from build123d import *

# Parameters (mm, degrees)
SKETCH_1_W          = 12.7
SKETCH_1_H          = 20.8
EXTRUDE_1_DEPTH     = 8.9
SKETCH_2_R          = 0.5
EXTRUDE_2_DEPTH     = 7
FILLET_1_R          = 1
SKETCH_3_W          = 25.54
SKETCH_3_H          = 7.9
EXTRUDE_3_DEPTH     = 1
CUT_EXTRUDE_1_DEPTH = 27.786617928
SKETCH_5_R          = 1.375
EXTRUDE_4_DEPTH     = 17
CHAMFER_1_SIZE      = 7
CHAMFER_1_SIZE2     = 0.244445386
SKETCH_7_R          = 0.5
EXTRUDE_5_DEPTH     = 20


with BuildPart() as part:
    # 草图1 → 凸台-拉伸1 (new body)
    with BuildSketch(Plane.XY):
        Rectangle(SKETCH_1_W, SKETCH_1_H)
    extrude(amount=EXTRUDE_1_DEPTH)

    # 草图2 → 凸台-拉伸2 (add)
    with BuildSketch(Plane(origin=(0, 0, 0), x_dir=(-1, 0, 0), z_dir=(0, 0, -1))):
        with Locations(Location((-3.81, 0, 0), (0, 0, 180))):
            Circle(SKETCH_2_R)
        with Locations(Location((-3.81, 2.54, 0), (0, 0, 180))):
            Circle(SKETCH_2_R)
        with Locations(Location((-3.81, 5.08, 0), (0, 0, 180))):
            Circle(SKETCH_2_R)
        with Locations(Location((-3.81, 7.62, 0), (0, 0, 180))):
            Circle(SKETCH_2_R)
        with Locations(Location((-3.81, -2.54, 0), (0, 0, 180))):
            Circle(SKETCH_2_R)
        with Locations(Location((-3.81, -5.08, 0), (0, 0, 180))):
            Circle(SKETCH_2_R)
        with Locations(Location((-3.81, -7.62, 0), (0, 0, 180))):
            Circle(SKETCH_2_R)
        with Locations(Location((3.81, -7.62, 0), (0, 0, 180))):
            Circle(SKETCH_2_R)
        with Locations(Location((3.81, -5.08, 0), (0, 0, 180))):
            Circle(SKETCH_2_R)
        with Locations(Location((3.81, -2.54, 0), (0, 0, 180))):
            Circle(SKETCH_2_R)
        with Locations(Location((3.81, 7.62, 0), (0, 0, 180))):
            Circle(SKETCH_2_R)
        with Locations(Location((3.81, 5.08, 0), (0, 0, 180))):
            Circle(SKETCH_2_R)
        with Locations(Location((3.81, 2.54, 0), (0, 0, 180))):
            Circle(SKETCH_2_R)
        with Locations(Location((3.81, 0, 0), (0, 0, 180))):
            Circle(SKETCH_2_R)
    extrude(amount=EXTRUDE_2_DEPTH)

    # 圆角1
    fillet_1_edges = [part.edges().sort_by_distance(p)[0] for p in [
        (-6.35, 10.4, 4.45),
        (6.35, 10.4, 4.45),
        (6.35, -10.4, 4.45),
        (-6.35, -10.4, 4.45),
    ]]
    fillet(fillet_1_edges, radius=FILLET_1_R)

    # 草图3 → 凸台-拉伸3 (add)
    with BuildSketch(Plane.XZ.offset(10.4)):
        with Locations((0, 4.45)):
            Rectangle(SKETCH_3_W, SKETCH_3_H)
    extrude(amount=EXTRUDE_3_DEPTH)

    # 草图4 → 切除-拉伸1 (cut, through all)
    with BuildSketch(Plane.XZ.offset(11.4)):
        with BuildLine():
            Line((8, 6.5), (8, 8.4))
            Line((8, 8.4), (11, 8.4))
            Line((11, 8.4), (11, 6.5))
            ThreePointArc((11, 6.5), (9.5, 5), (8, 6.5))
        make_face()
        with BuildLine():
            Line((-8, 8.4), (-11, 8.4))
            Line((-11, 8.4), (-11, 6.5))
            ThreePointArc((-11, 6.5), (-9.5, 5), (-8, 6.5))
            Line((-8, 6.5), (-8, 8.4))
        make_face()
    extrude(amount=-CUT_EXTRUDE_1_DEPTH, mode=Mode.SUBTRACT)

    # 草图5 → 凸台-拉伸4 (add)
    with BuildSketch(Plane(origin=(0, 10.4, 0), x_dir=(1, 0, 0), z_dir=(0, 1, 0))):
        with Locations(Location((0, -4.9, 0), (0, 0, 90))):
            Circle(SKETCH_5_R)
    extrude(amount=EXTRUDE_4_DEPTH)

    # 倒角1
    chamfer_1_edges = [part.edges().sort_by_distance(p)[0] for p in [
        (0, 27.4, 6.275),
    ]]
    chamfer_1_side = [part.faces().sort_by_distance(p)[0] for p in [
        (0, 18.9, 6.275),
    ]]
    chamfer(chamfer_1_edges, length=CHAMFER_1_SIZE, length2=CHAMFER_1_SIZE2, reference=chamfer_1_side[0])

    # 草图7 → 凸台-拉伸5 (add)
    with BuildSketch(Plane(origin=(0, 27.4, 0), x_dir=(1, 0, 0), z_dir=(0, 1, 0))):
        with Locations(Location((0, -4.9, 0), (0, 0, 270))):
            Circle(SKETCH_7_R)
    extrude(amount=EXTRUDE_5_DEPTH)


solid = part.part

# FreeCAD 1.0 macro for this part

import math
import FreeCAD as App
import Part
import Sketcher
Q = App.Units.Quantity


def edges_at(feature, points):
    """Names of the edges that pass closest to the given points."""
    edges = feature.Shape.Edges
    near = lambda p: min(range(len(edges)), key=lambda i: edges[i].distToShape(Part.Vertex(*p))[0])
    return sorted({f"Edge{near(p) + 1}" for p in points})


def add_polygon(sketch, points):
    """Adds a closed chain of lines whose ends are joined by coincident constraints."""
    first, n = sketch.GeometryCount, len(points)
    for a, b in zip(points, points[1:] + points[:1]):
        sketch.addGeometry(Part.LineSegment(App.Vector(*a, 0), App.Vector(*b, 0)), False)
    for i in range(n):
        sketch.addConstraint(Sketcher.Constraint("Coincident", first + i, 2, first + (i + 1) % n, 1))

doc = App.newDocument("Part")
params = doc.addObject("Spreadsheet::Sheet", "Params")
for row, (alias, value) in enumerate([
    ("sketch1_width", "12.7 mm"),
    ("sketch1_height", "20.8 mm"),
    ("pad1_length", "8.9 mm"),
    ("sketch2_diameter", "1 mm"),
    ("pad2_length", "7 mm"),
    ("fillet_radius", "1 mm"),
    ("sketch3_height", "7.9 mm"),
    ("sketch3_width", "25.54 mm"),
    ("pad3_length", "1 mm"),
    ("sketch4_radius", "1.5 mm"),
    ("sketch4_height", "1.9 mm"),
    ("sketch5_diameter", "2.75 mm"),
    ("pad4_length", "17 mm"),
    ("chamfer_size", "7 mm"),
    ("chamfer_size2", "0.244445 mm"),
    ("sketch6_diameter", "1 mm"),
    ("pad5_length", "20 mm"),
], start=1):
    params.set(f"A{row}", alias)
    params.set(f"B{row}", "=" + value)
    params.setAlias(f"B{row}", alias)

body = doc.addObject("PartDesign::Body", "Body")

# Sketch on XY plane
sketch1 = body.newObject("Sketcher::SketchObject", "Sketch")
sketch1.AttachmentSupport = (doc.getObject("XY_Plane"), [""])
sketch1.MapMode = "FlatFace"
add_polygon(sketch1, [(-6, 10), (-6, -10), (6, -10), (6, 10)])  # lines 0-3
sketch1.addConstraint([
    Sketcher.Constraint("Vertical", 0),
    Sketcher.Constraint("Horizontal", 1),
    Sketcher.Constraint("Vertical", 2),
    Sketcher.Constraint("Horizontal", 3),
    Sketcher.Constraint("Symmetric", 0, 2, 2, 2, -1, 1),
    Sketcher.Constraint("DistanceX", 1, 1, 1, 2, Q("12.7 mm")),
    Sketcher.Constraint("DistanceY", 0, 2, 0, 1, Q("20.8 mm")),
])
sketch1.setExpression("Constraints[9]", "Params.sketch1_width")
sketch1.setExpression("Constraints[10]", "Params.sketch1_height")
pad1 = body.newObject("PartDesign::Pad", "Pad")
pad1.Profile = sketch1
pad1.setExpression("Length", "Params.pad1_length")

# Sketch on XY plane
sketch2 = body.newObject("Sketcher::SketchObject", "Sketch001")
sketch2.AttachmentSupport = (doc.getObject("XY_Plane"), [""])
sketch2.MapMode = "FlatFace"
sketch2.addGeometry([
    Part.Circle(App.Vector(3.8, 0, 0), App.Vector(0, 0, 1), 0.5),  # 0
    Part.Circle(App.Vector(3.8, 2.5, 0), App.Vector(0, 0, 1), 0.5),  # 1
    Part.Circle(App.Vector(3.8, 5.1, 0), App.Vector(0, 0, 1), 0.5),  # 2
    Part.Circle(App.Vector(3.8, 7.6, 0), App.Vector(0, 0, 1), 0.5),  # 3
    Part.Circle(App.Vector(3.8, -2.5, 0), App.Vector(0, 0, 1), 0.5),  # 4
    Part.Circle(App.Vector(3.8, -5.1, 0), App.Vector(0, 0, 1), 0.5),  # 5
    Part.Circle(App.Vector(3.8, -7.6, 0), App.Vector(0, 0, 1), 0.5),  # 6
    Part.Circle(App.Vector(-3.8, -7.6, 0), App.Vector(0, 0, 1), 0.5),  # 7
    Part.Circle(App.Vector(-3.8, -5.1, 0), App.Vector(0, 0, 1), 0.5),  # 8
    Part.Circle(App.Vector(-3.8, -2.5, 0), App.Vector(0, 0, 1), 0.5),  # 9
    Part.Circle(App.Vector(-3.8, 7.6, 0), App.Vector(0, 0, 1), 0.5),  # 10
    Part.Circle(App.Vector(-3.8, 5.1, 0), App.Vector(0, 0, 1), 0.5),  # 11
    Part.Circle(App.Vector(-3.8, 2.5, 0), App.Vector(0, 0, 1), 0.5),  # 12
    Part.Circle(App.Vector(-3.8, 0, 0), App.Vector(0, 0, 1), 0.5),  # 13
], False)
sketch2.addConstraint([
    Sketcher.Constraint("Equal", 0, 1),
    Sketcher.Constraint("Equal", 1, 2),
    Sketcher.Constraint("Equal", 2, 3),
    Sketcher.Constraint("Equal", 3, 4),
    Sketcher.Constraint("Equal", 4, 5),
    Sketcher.Constraint("Equal", 5, 6),
    Sketcher.Constraint("Equal", 6, 7),
    Sketcher.Constraint("Equal", 7, 8),
    Sketcher.Constraint("Equal", 8, 9),
    Sketcher.Constraint("Equal", 9, 10),
    Sketcher.Constraint("Equal", 10, 11),
    Sketcher.Constraint("Equal", 11, 12),
    Sketcher.Constraint("Equal", 12, 13),
    Sketcher.Constraint("Symmetric", 3, 3, 7, 3, -1, 1),
    Sketcher.Constraint("Symmetric", 2, 3, 8, 3, -1, 1),
    Sketcher.Constraint("Symmetric", 1, 3, 9, 3, -1, 1),
    Sketcher.Constraint("Symmetric", 6, 3, 10, 3, -1, 1),
    Sketcher.Constraint("Symmetric", 5, 3, 11, 3, -1, 1),
    Sketcher.Constraint("Symmetric", 4, 3, 12, 3, -1, 1),
    Sketcher.Constraint("Symmetric", 0, 3, 13, 3, -1, 1),
    Sketcher.Constraint("Symmetric", 6, 3, 7, 3, -2),
    Sketcher.Constraint("Symmetric", 5, 3, 8, 3, -2),
    Sketcher.Constraint("Symmetric", 4, 3, 9, 3, -2),
    Sketcher.Constraint("PointOnObject", 0, 3, -1),
    Sketcher.Constraint("Vertical", 0, 3, 1, 3),
    Sketcher.Constraint("Vertical", 1, 3, 2, 3),
    Sketcher.Constraint("Vertical", 2, 3, 3, 3),
    Sketcher.Constraint("Diameter", 0, Q("1 mm")),
    Sketcher.Constraint("DistanceY", 5, 3, 3, 3, Q("12.7 mm")),
    Sketcher.Constraint("DistanceX", -1, 1, 0, 3, Q("3.81 mm")),
    Sketcher.Constraint("DistanceY", -1, 1, 1, 3, Q("2.54 mm")),
    Sketcher.Constraint("DistanceY", -1, 1, 2, 3, Q("5.08 mm")),
])
sketch2.setExpression("Constraints[27]", "Params.sketch2_diameter")
pad2 = body.newObject("PartDesign::Pad", "Pad001")
pad2.Profile = sketch2
pad2.setExpression("Length", "Params.pad2_length")
pad2.Reversed = True
doc.recompute()

fillet = body.newObject("PartDesign::Fillet", "Fillet")
fillet.Base = (pad2, edges_at(pad2, [
    (-6.35, 10.4, 4.45),
    (6.35, 10.4, 4.45),
    (6.35, -10.4, 4.45),
    (-6.35, -10.4, 4.45),
]))
fillet.setExpression("Radius", "Params.fillet_radius")

# Sketch on XZ plane
sketch3 = body.newObject("Sketcher::SketchObject", "Sketch002")
sketch3.AttachmentSupport = (doc.getObject("XZ_Plane"), [""])
sketch3.MapMode = "FlatFace"
sketch3.AttachmentOffset = App.Placement(App.Vector(0, 0, 10.4), App.Rotation())
add_polygon(sketch3, [(-13, 8), (-13, 0), (13, 0), (13, 8)])  # lines 0-3
sketch3.addConstraint([
    Sketcher.Constraint("Vertical", 0),
    Sketcher.Constraint("Horizontal", 1),
    Sketcher.Constraint("Vertical", 2),
    Sketcher.Constraint("Horizontal", 3),
    Sketcher.Constraint("DistanceY", 0, 2, 0, 1, Q("7.9 mm")),
    Sketcher.Constraint("DistanceX", 1, 1, 1, 2, Q("25.54 mm")),
    Sketcher.Constraint("DistanceY", -1, 1, 0, 2, Q("0.5 mm")),
    Sketcher.Constraint("DistanceX", 0, 2, -1, 1, Q("12.77 mm")),
])
sketch3.setExpression("Constraints[8]", "Params.sketch3_height")
sketch3.setExpression("Constraints[9]", "Params.sketch3_width")
pad3 = body.newObject("PartDesign::Pad", "Pad002")
pad3.Profile = sketch3
pad3.setExpression("Length", "Params.pad3_length")

# Sketch on XZ plane
sketch4 = body.newObject("Sketcher::SketchObject", "Sketch003")
sketch4.AttachmentSupport = (doc.getObject("XZ_Plane"), [""])
sketch4.MapMode = "FlatFace"
sketch4.AttachmentOffset = App.Placement(App.Vector(0, 0, 11.4), App.Rotation())
sketch4.addGeometry([
    Part.LineSegment(App.Vector(8, 8.4, 0), App.Vector(8, 6.5, 0)),  # 0
    Part.ArcOfCircle(Part.Circle(App.Vector(9.5, 6.5, 0), App.Vector(0, 0, 1), 1.5), math.radians(180), math.radians(360)),  # 1
    Part.LineSegment(App.Vector(11, 6.5, 0), App.Vector(11, 8.4, 0)),  # 2
    Part.LineSegment(App.Vector(11, 8.4, 0), App.Vector(8, 8.4, 0)),  # 3
    Part.LineSegment(App.Vector(-8, 8.4, 0), App.Vector(-11, 8.4, 0)),  # 4
    Part.LineSegment(App.Vector(-11, 8.4, 0), App.Vector(-11, 6.5, 0)),  # 5
    Part.ArcOfCircle(Part.Circle(App.Vector(-9.5, 6.5, 0), App.Vector(0, 0, 1), 1.5), math.radians(180), math.radians(360)),  # 6
    Part.LineSegment(App.Vector(-8, 6.5, 0), App.Vector(-8, 8.4, 0)),  # 7
], False)
sketch4.addConstraint([
    Sketcher.Constraint("Tangent", 0, 2, 1, 1),
    Sketcher.Constraint("Tangent", 1, 2, 2, 1),
    Sketcher.Constraint("Coincident", 2, 2, 3, 1),
    Sketcher.Constraint("Coincident", 3, 2, 0, 1),
    Sketcher.Constraint("Coincident", 4, 2, 5, 1),
    Sketcher.Constraint("Tangent", 5, 2, 6, 1),
    Sketcher.Constraint("Tangent", 6, 2, 7, 1),
    Sketcher.Constraint("Coincident", 7, 2, 4, 1),
    Sketcher.Constraint("Vertical", 0),
    Sketcher.Constraint("Vertical", 2),
    Sketcher.Constraint("Horizontal", 3),
    Sketcher.Constraint("Horizontal", 4),
    Sketcher.Constraint("Vertical", 5),
    Sketcher.Constraint("Vertical", 7),
    Sketcher.Constraint("Equal", 1, 6),
    Sketcher.Constraint("Symmetric", 1, 3, 6, 3, -2),
    Sketcher.Constraint("Horizontal", 3, 2, 4, 2),
    Sketcher.Constraint("Radius", 1, Q("1.5 mm")),
    Sketcher.Constraint("DistanceY", 0, 2, 0, 1, Q("1.9 mm")),
    Sketcher.Constraint("DistanceX", -1, 1, 0, 2, Q("8 mm")),
    Sketcher.Constraint("DistanceY", -1, 1, 1, 3, Q("6.5 mm")),
])
sketch4.setExpression("Constraints[17]", "Params.sketch4_radius")
sketch4.setExpression("Constraints[18]", "Params.sketch4_height")
pocket1 = body.newObject("PartDesign::Pocket", "Pocket")
pocket1.Profile = sketch4
pocket1.Type = "ThroughAll"

# Sketch on XZ plane
sketch5 = body.newObject("Sketcher::SketchObject", "Sketch004")
sketch5.AttachmentSupport = (doc.getObject("XZ_Plane"), [""])
sketch5.MapMode = "FlatFace"
sketch5.AttachmentOffset = App.Placement(App.Vector(0, 0, -10.4), App.Rotation())
sketch5.addGeometry(Part.Circle(App.Vector(0, 4.9, 0), App.Vector(0, 0, 1), 1.4), False)
sketch5.addConstraint([
    Sketcher.Constraint("PointOnObject", 0, 3, -2),
    Sketcher.Constraint("Diameter", 0, Q("2.75 mm")),
    Sketcher.Constraint("DistanceY", -1, 1, 0, 3, Q("4.9 mm")),
])
sketch5.setExpression("Constraints[1]", "Params.sketch5_diameter")
pad4 = body.newObject("PartDesign::Pad", "Pad003")
pad4.Profile = sketch5
pad4.setExpression("Length", "Params.pad4_length")
pad4.Reversed = True
doc.recompute()

chamfer = body.newObject("PartDesign::Chamfer", "Chamfer")
chamfer.Base = (pad4, edges_at(pad4, [(0, 27.4, 6.275)]))
chamfer.ChamferType = "Two distances"
chamfer.setExpression("Size", "Params.chamfer_size")
chamfer.setExpression("Size2", "Params.chamfer_size2")

# Sketch on XZ plane
sketch6 = body.newObject("Sketcher::SketchObject", "Sketch005")
sketch6.AttachmentSupport = (doc.getObject("XZ_Plane"), [""])
sketch6.MapMode = "FlatFace"
sketch6.AttachmentOffset = App.Placement(App.Vector(0, 0, -27.4), App.Rotation())
sketch6.addGeometry(Part.Circle(App.Vector(0, 4.9, 0), App.Vector(0, 0, 1), 0.5), False)
sketch6.addConstraint([
    Sketcher.Constraint("PointOnObject", 0, 3, -2),
    Sketcher.Constraint("Diameter", 0, Q("1 mm")),
    Sketcher.Constraint("DistanceY", -1, 1, 0, 3, Q("4.9 mm")),
])
sketch6.setExpression("Constraints[1]", "Params.sketch6_diameter")
pad5 = body.newObject("PartDesign::Pad", "Pad004")
pad5.Profile = sketch6
pad5.setExpression("Length", "Params.pad5_length")
pad5.Reversed = True

doc.recompute()
